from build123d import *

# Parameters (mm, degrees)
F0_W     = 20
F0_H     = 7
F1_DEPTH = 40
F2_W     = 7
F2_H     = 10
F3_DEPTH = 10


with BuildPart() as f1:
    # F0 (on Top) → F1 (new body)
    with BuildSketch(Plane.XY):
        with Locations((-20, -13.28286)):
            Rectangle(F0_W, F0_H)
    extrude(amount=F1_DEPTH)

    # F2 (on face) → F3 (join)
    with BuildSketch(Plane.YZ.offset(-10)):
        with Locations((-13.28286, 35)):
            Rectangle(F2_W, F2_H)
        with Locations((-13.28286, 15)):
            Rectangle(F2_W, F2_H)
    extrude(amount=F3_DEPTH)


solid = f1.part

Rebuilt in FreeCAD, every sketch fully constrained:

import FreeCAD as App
import Part
import Sketcher
from FreeCAD import Vector
Q = App.Units.Quantity

doc = App.newDocument("Part")
body = doc.addObject("PartDesign::Body", "Body")

sketch1 = body.newObject("Sketcher::SketchObject", "Sketch")
sketch1.AttachmentSupport = (doc.getObject("XY_Plane"), [""])
sketch1.MapMode = "FlatFace"
sketch1.addGeometry([
    Part.LineSegment(Vector(-30, -10, 0), Vector(-30, -17, 0)),
    Part.LineSegment(Vector(-30, -17, 0), Vector(-10, -17, 0)),
    Part.LineSegment(Vector(-10, -17, 0), Vector(-10, -10, 0)),
    Part.LineSegment(Vector(-10, -10, 0), Vector(-30, -10, 0)),
], False)
sketch1.addConstraint([
    Sketcher.Constraint("Coincident", 0, 2, 1, 1),
    Sketcher.Constraint("Coincident", 1, 2, 2, 1),
    Sketcher.Constraint("Coincident", 2, 2, 3, 1),
    Sketcher.Constraint("Coincident", 3, 2, 0, 1),
    Sketcher.Constraint("Vertical", 0),
    Sketcher.Constraint("Horizontal", 1),
    Sketcher.Constraint("Vertical", 2),
    Sketcher.Constraint("Horizontal", 3),
    Sketcher.Constraint("DistanceX", 1, 1, 1, 2, Q("20 mm")),
    Sketcher.Constraint("DistanceY", 0, 2, 0, 1, Q("7 mm")),
    Sketcher.Constraint("DistanceX", 0, 2, -1, 1, Q("30 mm")),
    Sketcher.Constraint("DistanceY", 0, 2, -1, 1, Q("16.78286 mm")),
])
pad1 = body.newObject("PartDesign::Pad", "Pad")
pad1.Profile = sketch1
pad1.Length = 40

sketch2 = body.newObject("Sketcher::SketchObject", "Sketch001")
sketch2.AttachmentSupport = (doc.getObject("YZ_Plane"), [""])
sketch2.MapMode = "FlatFace"
sketch2.AttachmentOffset = App.Placement(Vector(0, 0, -10), App.Rotation())
sketch2.addGeometry([
    Part.LineSegment(Vector(-17, 40, 0), Vector(-17, 30, 0)),
    Part.LineSegment(Vector(-17, 30, 0), Vector(-10, 30, 0)),
    Part.LineSegment(Vector(-10, 30, 0), Vector(-10, 40, 0)),
    Part.LineSegment(Vector(-10, 40, 0), Vector(-17, 40, 0)),
    Part.LineSegment(Vector(-17, 20, 0), Vector(-17, 10, 0)),
    Part.LineSegment(Vector(-17, 10, 0), Vector(-10, 10, 0)),
    Part.LineSegment(Vector(-10, 10, 0), Vector(-10, 20, 0)),
    Part.LineSegment(Vector(-10, 20, 0), Vector(-17, 20, 0)),
], False)
sketch2.addConstraint([
    Sketcher.Constraint("Coincident", 0, 2, 1, 1),
    Sketcher.Constraint("Coincident", 1, 2, 2, 1),
    Sketcher.Constraint("Coincident", 2, 2, 3, 1),
    Sketcher.Constraint("Coincident", 3, 2, 0, 1),
    Sketcher.Constraint("Coincident", 4, 2, 5, 1),
    Sketcher.Constraint("Coincident", 5, 2, 6, 1),
    Sketcher.Constraint("Coincident", 6, 2, 7, 1),
    Sketcher.Constraint("Coincident", 7, 2, 4, 1),
    Sketcher.Constraint("Vertical", 0),
    Sketcher.Constraint("Horizontal", 1),
    Sketcher.Constraint("Vertical", 2),
    Sketcher.Constraint("Horizontal", 3),
    Sketcher.Constraint("Vertical", 4),
    Sketcher.Constraint("Horizontal", 5),
    Sketcher.Constraint("Vertical", 6),
    Sketcher.Constraint("Horizontal", 7),
    Sketcher.Constraint("Vertical", 3, 2, 4, 2),
    Sketcher.Constraint("Vertical", 2, 2, 5, 2),
    Sketcher.Constraint("Equal", 2, 4),
    Sketcher.Constraint("DistanceX", 1, 1, 1, 2, Q("7 mm")),
    Sketcher.Constraint("DistanceY", 0, 2, 0, 1, Q("10 mm")),
    Sketcher.Constraint("DistanceY", -1, 1, 0, 2, Q("30 mm")),
    Sketcher.Constraint("DistanceY", -1, 1, 4, 2, Q("10 mm")),
    Sketcher.Constraint("DistanceX", 0, 2, -1, 1, Q("16.78286 mm")),
])
pad2 = body.newObject("PartDesign::Pad", "Pad001")
pad2.Profile = sketch2
pad2.Length = 10

doc.recompute()
